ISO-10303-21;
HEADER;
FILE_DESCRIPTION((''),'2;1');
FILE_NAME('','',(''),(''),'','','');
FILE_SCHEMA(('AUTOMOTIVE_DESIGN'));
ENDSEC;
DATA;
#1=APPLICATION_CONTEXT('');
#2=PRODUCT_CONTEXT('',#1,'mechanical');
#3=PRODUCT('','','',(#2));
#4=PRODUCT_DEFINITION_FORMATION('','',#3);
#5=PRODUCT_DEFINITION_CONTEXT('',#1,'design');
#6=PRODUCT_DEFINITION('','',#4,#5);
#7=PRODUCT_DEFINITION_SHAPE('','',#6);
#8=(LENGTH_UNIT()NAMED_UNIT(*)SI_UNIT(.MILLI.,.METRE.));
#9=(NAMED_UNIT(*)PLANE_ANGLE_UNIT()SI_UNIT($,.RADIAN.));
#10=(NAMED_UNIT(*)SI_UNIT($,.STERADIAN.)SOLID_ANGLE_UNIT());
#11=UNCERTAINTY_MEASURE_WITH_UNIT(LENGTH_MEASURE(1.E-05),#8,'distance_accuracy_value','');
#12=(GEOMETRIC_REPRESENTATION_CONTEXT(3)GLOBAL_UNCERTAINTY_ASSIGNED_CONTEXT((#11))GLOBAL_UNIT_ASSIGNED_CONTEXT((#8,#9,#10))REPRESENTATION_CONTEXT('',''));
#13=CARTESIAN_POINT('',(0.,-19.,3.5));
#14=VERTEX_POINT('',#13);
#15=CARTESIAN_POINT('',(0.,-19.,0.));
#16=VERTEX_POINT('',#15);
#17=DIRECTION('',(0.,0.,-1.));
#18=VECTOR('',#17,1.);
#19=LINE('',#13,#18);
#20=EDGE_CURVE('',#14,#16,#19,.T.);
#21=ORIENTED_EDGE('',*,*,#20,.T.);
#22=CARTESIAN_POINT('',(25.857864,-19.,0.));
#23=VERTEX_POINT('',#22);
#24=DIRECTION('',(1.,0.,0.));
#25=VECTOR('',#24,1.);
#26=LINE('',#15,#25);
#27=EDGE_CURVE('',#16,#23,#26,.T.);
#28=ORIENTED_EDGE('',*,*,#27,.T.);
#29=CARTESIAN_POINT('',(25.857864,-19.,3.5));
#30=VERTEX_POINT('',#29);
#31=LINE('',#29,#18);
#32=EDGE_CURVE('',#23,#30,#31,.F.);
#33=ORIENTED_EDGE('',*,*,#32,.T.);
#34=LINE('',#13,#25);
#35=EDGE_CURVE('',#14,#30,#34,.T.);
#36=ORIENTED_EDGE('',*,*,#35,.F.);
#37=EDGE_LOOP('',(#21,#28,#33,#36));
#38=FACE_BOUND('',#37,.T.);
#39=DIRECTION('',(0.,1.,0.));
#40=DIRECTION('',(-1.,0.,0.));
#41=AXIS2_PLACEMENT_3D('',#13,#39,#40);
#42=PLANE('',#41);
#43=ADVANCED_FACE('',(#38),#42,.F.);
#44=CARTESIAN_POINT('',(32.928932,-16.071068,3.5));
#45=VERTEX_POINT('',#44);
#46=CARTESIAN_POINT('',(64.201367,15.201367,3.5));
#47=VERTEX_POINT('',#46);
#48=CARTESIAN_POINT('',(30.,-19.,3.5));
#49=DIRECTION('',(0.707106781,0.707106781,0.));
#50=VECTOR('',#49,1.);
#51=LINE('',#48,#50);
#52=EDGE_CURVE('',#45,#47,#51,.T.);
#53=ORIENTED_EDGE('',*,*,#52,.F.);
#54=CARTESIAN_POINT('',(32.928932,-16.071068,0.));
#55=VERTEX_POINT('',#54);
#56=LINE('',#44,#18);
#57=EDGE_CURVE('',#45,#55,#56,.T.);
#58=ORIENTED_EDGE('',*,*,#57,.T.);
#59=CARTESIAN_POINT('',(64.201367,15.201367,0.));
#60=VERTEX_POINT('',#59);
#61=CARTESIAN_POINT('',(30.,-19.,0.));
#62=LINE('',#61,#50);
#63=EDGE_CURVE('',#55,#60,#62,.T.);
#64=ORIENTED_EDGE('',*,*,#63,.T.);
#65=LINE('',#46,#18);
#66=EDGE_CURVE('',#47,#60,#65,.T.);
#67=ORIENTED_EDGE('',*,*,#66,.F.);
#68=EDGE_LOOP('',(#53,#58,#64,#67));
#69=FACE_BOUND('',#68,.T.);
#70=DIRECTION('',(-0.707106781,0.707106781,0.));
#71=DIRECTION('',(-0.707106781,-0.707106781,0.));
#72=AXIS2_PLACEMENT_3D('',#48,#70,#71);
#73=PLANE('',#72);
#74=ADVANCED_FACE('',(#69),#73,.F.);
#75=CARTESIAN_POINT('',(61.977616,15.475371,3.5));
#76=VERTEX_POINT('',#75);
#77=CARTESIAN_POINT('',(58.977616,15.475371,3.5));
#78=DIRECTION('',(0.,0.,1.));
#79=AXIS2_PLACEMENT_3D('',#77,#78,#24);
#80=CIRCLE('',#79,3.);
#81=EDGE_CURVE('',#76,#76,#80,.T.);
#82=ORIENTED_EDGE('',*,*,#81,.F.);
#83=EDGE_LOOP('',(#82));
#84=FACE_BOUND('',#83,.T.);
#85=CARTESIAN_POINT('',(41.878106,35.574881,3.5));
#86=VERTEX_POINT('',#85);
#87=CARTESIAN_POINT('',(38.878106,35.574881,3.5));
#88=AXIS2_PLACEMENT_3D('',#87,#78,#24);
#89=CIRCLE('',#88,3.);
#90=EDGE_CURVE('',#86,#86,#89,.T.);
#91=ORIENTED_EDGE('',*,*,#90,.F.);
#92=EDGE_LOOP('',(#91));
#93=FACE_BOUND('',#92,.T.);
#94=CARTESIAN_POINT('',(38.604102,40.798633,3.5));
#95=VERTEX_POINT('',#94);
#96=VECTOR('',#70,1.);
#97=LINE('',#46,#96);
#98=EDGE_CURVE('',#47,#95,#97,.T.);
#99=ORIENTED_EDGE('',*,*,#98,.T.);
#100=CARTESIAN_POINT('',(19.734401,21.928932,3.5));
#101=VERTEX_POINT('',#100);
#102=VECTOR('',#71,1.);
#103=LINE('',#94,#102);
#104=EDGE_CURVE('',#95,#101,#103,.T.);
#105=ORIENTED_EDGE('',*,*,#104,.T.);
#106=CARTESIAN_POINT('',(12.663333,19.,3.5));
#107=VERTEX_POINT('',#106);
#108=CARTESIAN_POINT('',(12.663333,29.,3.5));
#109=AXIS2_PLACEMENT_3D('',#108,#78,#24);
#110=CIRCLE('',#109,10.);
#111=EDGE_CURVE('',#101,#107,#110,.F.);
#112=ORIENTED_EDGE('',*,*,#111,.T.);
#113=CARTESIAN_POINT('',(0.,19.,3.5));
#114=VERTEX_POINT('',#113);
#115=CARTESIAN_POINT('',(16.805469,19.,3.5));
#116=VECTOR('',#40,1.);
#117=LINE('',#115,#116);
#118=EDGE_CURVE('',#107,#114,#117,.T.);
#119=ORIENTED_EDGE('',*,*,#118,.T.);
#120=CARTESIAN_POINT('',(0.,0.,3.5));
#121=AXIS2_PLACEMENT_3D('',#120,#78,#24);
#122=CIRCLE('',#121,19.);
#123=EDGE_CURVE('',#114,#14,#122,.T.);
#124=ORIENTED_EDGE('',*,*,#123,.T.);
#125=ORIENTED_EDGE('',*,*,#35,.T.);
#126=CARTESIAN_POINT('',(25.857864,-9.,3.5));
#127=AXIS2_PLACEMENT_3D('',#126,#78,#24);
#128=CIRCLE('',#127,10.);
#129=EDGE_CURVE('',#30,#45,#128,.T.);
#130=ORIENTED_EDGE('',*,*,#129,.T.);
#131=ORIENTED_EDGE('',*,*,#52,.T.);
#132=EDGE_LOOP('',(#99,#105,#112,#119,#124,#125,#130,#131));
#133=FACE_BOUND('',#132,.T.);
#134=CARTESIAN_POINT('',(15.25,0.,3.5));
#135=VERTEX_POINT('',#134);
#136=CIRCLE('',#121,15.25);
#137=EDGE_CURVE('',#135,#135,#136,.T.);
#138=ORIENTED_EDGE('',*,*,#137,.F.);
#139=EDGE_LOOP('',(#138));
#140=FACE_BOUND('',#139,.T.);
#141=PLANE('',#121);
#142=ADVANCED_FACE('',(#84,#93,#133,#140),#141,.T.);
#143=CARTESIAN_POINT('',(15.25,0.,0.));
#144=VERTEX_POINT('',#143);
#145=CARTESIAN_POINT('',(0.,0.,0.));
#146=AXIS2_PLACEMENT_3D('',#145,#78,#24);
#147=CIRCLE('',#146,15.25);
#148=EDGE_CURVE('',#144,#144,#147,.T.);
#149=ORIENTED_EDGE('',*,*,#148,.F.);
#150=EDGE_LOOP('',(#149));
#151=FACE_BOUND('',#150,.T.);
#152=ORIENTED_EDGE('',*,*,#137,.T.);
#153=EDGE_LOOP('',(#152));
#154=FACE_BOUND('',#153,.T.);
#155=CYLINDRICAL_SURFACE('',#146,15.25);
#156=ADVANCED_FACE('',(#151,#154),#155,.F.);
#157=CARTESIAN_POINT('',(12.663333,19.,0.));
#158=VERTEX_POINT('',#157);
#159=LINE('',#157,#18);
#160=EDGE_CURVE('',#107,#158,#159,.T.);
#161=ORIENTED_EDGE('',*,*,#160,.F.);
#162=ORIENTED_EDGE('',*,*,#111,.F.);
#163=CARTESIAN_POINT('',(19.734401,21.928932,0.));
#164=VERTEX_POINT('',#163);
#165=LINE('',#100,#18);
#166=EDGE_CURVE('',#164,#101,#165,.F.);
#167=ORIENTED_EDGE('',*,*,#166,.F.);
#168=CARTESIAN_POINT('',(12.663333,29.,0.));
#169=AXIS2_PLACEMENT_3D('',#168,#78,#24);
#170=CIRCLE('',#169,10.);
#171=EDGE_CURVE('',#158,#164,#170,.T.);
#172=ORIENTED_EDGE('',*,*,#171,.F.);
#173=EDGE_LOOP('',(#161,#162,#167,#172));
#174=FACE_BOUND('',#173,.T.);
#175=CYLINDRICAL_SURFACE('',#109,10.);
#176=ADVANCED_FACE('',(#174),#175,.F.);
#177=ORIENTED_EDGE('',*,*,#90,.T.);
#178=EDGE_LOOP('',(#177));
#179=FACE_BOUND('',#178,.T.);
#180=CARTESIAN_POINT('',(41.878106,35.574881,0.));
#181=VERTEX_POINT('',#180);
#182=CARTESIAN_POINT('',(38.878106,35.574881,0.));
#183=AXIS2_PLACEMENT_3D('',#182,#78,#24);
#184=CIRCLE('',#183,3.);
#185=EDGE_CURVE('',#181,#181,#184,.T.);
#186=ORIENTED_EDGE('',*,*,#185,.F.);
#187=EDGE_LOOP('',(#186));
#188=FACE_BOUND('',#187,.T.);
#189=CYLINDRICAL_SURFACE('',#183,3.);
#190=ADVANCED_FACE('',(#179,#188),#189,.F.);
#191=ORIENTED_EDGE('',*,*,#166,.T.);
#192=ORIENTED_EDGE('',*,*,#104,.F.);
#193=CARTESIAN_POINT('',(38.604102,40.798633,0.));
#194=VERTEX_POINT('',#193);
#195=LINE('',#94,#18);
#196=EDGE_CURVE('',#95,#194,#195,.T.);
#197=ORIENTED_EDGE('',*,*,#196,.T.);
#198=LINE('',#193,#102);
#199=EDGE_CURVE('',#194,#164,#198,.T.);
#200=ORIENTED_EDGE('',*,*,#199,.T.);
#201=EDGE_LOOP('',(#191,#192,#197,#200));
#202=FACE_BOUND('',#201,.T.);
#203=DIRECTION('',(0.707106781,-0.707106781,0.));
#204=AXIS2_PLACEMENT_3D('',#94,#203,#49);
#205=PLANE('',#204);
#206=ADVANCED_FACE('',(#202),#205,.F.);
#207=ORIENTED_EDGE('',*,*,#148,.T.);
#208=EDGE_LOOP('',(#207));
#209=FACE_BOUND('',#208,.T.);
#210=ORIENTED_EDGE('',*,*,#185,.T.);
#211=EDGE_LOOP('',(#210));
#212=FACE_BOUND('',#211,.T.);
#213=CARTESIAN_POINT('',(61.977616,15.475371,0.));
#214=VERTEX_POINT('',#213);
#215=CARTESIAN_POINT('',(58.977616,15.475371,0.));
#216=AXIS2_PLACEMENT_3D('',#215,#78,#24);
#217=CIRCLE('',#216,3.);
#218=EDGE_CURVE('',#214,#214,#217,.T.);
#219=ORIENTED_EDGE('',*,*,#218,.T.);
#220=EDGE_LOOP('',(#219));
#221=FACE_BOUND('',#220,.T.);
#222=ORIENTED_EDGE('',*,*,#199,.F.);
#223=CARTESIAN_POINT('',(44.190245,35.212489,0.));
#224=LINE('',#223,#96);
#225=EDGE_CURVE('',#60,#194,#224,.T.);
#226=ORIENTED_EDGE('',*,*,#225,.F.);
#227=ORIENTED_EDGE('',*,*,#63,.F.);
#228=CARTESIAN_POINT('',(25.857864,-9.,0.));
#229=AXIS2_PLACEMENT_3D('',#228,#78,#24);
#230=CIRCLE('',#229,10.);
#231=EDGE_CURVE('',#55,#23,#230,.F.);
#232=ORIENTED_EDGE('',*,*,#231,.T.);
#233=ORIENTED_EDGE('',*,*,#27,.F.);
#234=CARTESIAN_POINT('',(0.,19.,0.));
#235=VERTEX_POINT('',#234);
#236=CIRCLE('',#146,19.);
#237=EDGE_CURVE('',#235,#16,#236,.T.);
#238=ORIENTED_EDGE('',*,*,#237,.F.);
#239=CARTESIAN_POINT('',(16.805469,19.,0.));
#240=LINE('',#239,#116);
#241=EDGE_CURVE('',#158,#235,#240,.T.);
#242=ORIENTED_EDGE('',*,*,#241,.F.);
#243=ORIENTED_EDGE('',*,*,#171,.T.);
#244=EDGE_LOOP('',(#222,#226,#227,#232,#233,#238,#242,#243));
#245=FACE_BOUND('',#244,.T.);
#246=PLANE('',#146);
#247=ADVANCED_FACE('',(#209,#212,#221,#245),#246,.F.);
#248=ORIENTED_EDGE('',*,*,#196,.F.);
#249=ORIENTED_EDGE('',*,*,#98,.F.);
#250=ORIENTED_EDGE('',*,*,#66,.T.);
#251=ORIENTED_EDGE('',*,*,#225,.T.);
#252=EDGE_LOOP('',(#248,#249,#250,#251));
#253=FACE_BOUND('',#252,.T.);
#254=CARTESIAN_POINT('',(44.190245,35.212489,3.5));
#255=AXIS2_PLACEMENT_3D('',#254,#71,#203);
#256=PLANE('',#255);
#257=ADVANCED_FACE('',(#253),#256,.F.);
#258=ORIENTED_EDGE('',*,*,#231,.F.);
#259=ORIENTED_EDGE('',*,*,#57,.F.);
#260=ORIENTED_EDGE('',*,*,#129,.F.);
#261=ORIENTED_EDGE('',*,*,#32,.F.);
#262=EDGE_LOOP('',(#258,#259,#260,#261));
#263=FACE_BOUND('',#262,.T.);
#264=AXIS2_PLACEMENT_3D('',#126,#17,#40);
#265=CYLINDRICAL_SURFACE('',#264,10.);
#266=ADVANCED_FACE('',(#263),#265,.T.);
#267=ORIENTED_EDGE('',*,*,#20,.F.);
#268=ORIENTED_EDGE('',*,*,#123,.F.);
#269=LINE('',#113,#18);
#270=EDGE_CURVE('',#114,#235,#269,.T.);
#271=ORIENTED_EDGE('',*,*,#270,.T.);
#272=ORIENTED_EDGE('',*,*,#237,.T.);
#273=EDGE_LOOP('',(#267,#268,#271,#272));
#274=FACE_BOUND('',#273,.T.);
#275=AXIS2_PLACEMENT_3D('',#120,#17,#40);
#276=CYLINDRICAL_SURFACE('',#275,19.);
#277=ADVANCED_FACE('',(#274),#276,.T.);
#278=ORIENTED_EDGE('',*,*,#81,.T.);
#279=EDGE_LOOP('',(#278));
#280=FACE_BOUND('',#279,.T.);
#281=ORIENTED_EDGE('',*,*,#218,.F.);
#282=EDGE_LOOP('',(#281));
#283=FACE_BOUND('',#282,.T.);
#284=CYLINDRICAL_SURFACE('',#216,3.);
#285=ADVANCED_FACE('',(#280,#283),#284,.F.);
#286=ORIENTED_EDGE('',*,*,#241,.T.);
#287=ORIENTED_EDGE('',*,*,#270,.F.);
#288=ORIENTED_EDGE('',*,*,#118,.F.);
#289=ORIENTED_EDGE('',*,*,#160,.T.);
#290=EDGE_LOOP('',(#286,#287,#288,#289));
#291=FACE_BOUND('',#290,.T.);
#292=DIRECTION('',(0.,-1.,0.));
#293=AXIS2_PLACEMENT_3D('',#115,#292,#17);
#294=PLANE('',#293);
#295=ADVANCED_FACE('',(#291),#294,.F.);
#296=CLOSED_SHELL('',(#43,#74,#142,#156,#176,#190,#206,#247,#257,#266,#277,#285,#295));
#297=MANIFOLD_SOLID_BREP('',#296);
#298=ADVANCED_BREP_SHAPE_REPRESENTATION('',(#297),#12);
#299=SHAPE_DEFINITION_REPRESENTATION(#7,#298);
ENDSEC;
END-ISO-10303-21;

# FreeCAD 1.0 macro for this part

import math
import FreeCAD as App
import Part
import Sketcher
from FreeCAD import Vector
Q = App.Units.Quantity


def edges_at(feature, points):
    """Names of the edges that pass closest to the given points."""
    edges = feature.Shape.Edges
    near = lambda p: min(range(len(edges)), key=lambda i: edges[i].distToShape(Part.Vertex(*p))[0])
    return sorted({f"Edge{near(p) + 1}" for p in points})

doc = App.newDocument("Part")
body = doc.addObject("PartDesign::Body", "Body")

sketch1 = doc.addObject("Sketcher::SketchObject", "Sketch")
body.addObject(sketch1)
sketch1.AttachmentSupport = (doc.XY_Plane, [""])
sketch1.MapMode = "FlatFace"
sketch1.addGeometry([
    Part.LineSegment(Vector(0, -19, 0), Vector(30, -19, 0)),
    Part.LineSegment(Vector(30, -19, 0), Vector(64.2, 15.2, 0)),
    Part.LineSegment(Vector(64.2, 15.2, 0), Vector(58.6, 20.8, 0)),
    Part.LineSegment(Vector(58.6, 20.8, 0), Vector(38.6, 40.8, 0)),
    Part.LineSegment(Vector(38.6, 40.8, 0), Vector(16.8, 19, 0)),
    Part.LineSegment(Vector(16.8, 19, 0), Vector(0, 19, 0)),
    Part.ArcOfCircle(Part.Circle(Vector(0, 0, 0), Vector(0, 0, 1), 19), math.radians(90), math.radians(270)),
    Part.Circle(Vector(0, 0, 0), Vector(0, 0, 1), 2.5),
], False)
sketch1.addConstraint([
    Sketcher.Constraint("Coincident", 0, 2, 1, 1),
    Sketcher.Constraint("Coincident", 1, 2, 2, 1),
    Sketcher.Constraint("Coincident", 2, 2, 3, 1),
    Sketcher.Constraint("Coincident", 3, 2, 4, 1),
    Sketcher.Constraint("Coincident", 4, 2, 5, 1),
    Sketcher.Constraint("Tangent", 5, 2, 6, 1),
    Sketcher.Constraint("Tangent", 6, 2, 0, 1),
    Sketcher.Constraint("Horizontal", 0),
    Sketcher.Constraint("Horizontal", 5),
    Sketcher.Constraint("Coincident", 6, 3, -1, 1),
    Sketcher.Constraint("Coincident", 7, 3, -1, 1),
    Sketcher.Constraint("Perpendicular", 1, 2),
    Sketcher.Constraint("Parallel", 2, 3),
    Sketcher.Constraint("Perpendicular", 3, 4),
    Sketcher.Constraint("Diameter", 7, Q("5 mm")),
    Sketcher.Constraint("Radius", 6, Q("19 mm")),
    Sketcher.Constraint("DistanceX", 0, 1, 0, 2, Q("30 mm")),
    Sketcher.Constraint("Angle", 1, Q("45 deg")),
    Sketcher.Constraint("Distance", 2, Q("7.9 mm")),
    Sketcher.Constraint("Distance", 3, Q("28.3 mm")),
    Sketcher.Constraint("DistanceX", -1, 1, 3, 2, Q("38.604102 mm")),
])
pad1 = doc.addObject("PartDesign::Pad", "Pad")
body.addObject(pad1)
pad1.Profile = sketch1
pad1.Length = 3.5

sketch2 = doc.addObject("Sketcher::SketchObject", "Sketch001")
body.addObject(sketch2)
sketch2.AttachmentSupport = (doc.XY_Plane, [""])
sketch2.MapMode = "FlatFace"
sketch2.AttachmentOffset = App.Placement(Vector(0, 0, 3.5), App.Rotation())
sketch2.addGeometry([
    Part.Circle(Vector(38.9, 35.6, 0), Vector(0, 0, 1), 1.5),
    Part.Circle(Vector(59, 15.5, 0), Vector(0, 0, 1), 1.5),
], False)
sketch2.addConstraint([
    Sketcher.Constraint("Equal", 0, 1),
    Sketcher.Constraint("Diameter", 0, Q("3 mm")),
    Sketcher.Constraint("DistanceY", -1, 1, 0, 3, Q("35.574881 mm")),
    Sketcher.Constraint("DistanceY", -1, 1, 1, 3, Q("15.475371 mm")),
    Sketcher.Constraint("DistanceX", 0, 3, 1, 3, Q("20.09951 mm")),
    Sketcher.Constraint("DistanceX", -1, 1, 0, 3, Q("38.878106 mm")),
])
pocket1 = doc.addObject("PartDesign::Pocket", "Pocket")
body.addObject(pocket1)
pocket1.Profile = sketch2
pocket1.Type = "ThroughAll"
doc.recompute()

fillet = doc.addObject("PartDesign::Fillet", "Fillet")
body.addObject(fillet)
fillet.Base = (pocket1, edges_at(pocket1, [(16.805, 19, 1.75), (30, -19, 1.75)]))
fillet.Radius = 10

sketch3 = doc.addObject("Sketcher::SketchObject", "Sketch002")
body.addObject(sketch3)
sketch3.AttachmentSupport = (doc.XY_Plane, [""])
sketch3.MapMode = "FlatFace"
sketch3.AttachmentOffset = App.Placement(Vector(0, 0, 3.5), App.Rotation())
sketch3.addGeometry([
    Part.Circle(Vector(0, 0, 0), Vector(0, 0, 1), 15.2),
    Part.Circle(Vector(38.9, 35.6, 0), Vector(0, 0, 1), 3),
    Part.Circle(Vector(59, 15.5, 0), Vector(0, 0, 1), 3),
], False)
sketch3.addConstraint([
    Sketcher.Constraint("Coincident", 0, 3, -1, 1),
    Sketcher.Constraint("Equal", 1, 2),
    Sketcher.Constraint("Diameter", 1, Q("6 mm")),
    Sketcher.Constraint("Diameter", 0, Q("30.5 mm")),
    Sketcher.Constraint("DistanceY", -1, 1, 1, 3, Q("35.574881 mm")),
    Sketcher.Constraint("DistanceY", -1, 1, 2, 3, Q("15.475371 mm")),
    Sketcher.Constraint("DistanceX", 1, 3, 2, 3, Q("20.09951 mm")),
    Sketcher.Constraint("DistanceX", -1, 1, 1, 3, Q("38.878106 mm")),
])
pocket2 = doc.addObject("PartDesign::Pocket", "Pocket001")
body.addObject(pocket2)
pocket2.Profile = sketch3
pocket2.Type = "ThroughAll"

doc.recompute()
